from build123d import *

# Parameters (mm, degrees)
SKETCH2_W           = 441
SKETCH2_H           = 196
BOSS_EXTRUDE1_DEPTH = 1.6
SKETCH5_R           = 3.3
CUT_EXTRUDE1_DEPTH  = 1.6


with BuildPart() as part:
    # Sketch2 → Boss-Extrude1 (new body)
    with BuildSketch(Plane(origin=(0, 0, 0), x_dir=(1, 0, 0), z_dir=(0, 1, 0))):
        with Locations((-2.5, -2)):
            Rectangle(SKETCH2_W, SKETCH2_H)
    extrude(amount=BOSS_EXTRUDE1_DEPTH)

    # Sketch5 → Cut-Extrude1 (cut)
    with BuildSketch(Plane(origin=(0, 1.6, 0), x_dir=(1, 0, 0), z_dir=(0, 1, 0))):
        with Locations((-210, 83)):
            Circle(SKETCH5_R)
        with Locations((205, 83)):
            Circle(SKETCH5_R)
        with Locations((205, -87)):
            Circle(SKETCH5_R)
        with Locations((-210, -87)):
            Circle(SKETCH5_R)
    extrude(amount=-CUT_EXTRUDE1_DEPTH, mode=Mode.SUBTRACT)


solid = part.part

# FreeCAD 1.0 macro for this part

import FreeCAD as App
import Part
import Sketcher

doc = App.newDocument("Part")
body = doc.addObject("PartDesign::Body", "Body")

# Sketch on XZ plane
sketch1 = body.newObject("Sketcher::SketchObject", "Sketch")
sketch1.AttachmentSupport = (doc.getObject("XZ_Plane"), [""])
sketch1.MapMode = "FlatFace"
sketch1.addGeometry([
    Part.LineSegment(App.Vector(-223, -96, 0), App.Vector(-223, 100, 0)),
    Part.LineSegment(App.Vector(-223, 100, 0), App.Vector(218, 100, 0)),
    Part.LineSegment(App.Vector(218, 100, 0), App.Vector(218, -96, 0)),
    Part.LineSegment(App.Vector(218, -96, 0), App.Vector(-223, -96, 0)),
], False)
sketch1.addConstraint([
    Sketcher.Constraint("Coincident", 0, 2, 1, 1),
    Sketcher.Constraint("Coincident", 1, 2, 2, 1),
    Sketcher.Constraint("Coincident", 2, 2, 3, 1),
    Sketcher.Constraint("Coincident", 3, 2, 0, 1),
    Sketcher.Constraint("Vertical", 0),
    Sketcher.Constraint("Horizontal", 1),
    Sketcher.Constraint("Vertical", 2),
    Sketcher.Constraint("Horizontal", 3),
    Sketcher.Constraint("DistanceX", 1, 1, 1, 2, 441.0),
    Sketcher.Constraint("DistanceY", 0, 1, 0, 2, 196.0),
    Sketcher.Constraint("DistanceX", 0, 2, -1, 1, 223.0),
    Sketcher.Constraint("DistanceY", -1, 1, 0, 2, 100.0),
])
pad1 = body.newObject("PartDesign::Pad", "Pad")
pad1.Profile = sketch1
pad1.Length = 1.6
pad1.Reversed = True

# Sketch on XZ plane
sketch2 = body.newObject("Sketcher::SketchObject", "Sketch001")
sketch2.AttachmentSupport = (doc.getObject("XZ_Plane"), [""])
sketch2.MapMode = "FlatFace"
sketch2.AttachmentOffset = App.Placement(App.Vector(0, 0, -1.6), App.Rotation())
sketch2.addGeometry([
    Part.Circle(App.Vector(-210, -83, 0), App.Vector(0, 0, 1), 3.3),
    Part.Circle(App.Vector(205, -83, 0), App.Vector(0, 0, 1), 3.3),
    Part.Circle(App.Vector(205, 87, 0), App.Vector(0, 0, 1), 3.3),
    Part.Circle(App.Vector(-210, 87, 0), App.Vector(0, 0, 1), 3.3),
], False)
sketch2.addConstraint([
    Sketcher.Constraint("Equal", 0, 1),
    Sketcher.Constraint("Equal", 1, 2),
    Sketcher.Constraint("Equal", 2, 3),
    Sketcher.Constraint("Horizontal", 0, 3, 1, 3),
    Sketcher.Constraint("Horizontal", 2, 3, 3, 3),
    Sketcher.Constraint("Vertical", 1, 3, 2, 3),
    Sketcher.Constraint("Vertical", 0, 3, 3, 3),
    Sketcher.Constraint("Diameter", 0, 6.6),
    Sketcher.Constraint("DistanceX", 0, 3, -1, 1, 210.0),
    Sketcher.Constraint("DistanceY", 0, 3, -1, 1, 83.0),
    Sketcher.Constraint("DistanceX", -1, 1, 1, 3, 205.0),
    Sketcher.Constraint("DistanceY", -1, 1, 2, 3, 87.0),
])
pocket1 = body.newObject("PartDesign::Pocket", "Pocket")
pocket1.Profile = sketch2
pocket1.Length = 1.6
pocket1.Reversed = True

doc.recompute()
